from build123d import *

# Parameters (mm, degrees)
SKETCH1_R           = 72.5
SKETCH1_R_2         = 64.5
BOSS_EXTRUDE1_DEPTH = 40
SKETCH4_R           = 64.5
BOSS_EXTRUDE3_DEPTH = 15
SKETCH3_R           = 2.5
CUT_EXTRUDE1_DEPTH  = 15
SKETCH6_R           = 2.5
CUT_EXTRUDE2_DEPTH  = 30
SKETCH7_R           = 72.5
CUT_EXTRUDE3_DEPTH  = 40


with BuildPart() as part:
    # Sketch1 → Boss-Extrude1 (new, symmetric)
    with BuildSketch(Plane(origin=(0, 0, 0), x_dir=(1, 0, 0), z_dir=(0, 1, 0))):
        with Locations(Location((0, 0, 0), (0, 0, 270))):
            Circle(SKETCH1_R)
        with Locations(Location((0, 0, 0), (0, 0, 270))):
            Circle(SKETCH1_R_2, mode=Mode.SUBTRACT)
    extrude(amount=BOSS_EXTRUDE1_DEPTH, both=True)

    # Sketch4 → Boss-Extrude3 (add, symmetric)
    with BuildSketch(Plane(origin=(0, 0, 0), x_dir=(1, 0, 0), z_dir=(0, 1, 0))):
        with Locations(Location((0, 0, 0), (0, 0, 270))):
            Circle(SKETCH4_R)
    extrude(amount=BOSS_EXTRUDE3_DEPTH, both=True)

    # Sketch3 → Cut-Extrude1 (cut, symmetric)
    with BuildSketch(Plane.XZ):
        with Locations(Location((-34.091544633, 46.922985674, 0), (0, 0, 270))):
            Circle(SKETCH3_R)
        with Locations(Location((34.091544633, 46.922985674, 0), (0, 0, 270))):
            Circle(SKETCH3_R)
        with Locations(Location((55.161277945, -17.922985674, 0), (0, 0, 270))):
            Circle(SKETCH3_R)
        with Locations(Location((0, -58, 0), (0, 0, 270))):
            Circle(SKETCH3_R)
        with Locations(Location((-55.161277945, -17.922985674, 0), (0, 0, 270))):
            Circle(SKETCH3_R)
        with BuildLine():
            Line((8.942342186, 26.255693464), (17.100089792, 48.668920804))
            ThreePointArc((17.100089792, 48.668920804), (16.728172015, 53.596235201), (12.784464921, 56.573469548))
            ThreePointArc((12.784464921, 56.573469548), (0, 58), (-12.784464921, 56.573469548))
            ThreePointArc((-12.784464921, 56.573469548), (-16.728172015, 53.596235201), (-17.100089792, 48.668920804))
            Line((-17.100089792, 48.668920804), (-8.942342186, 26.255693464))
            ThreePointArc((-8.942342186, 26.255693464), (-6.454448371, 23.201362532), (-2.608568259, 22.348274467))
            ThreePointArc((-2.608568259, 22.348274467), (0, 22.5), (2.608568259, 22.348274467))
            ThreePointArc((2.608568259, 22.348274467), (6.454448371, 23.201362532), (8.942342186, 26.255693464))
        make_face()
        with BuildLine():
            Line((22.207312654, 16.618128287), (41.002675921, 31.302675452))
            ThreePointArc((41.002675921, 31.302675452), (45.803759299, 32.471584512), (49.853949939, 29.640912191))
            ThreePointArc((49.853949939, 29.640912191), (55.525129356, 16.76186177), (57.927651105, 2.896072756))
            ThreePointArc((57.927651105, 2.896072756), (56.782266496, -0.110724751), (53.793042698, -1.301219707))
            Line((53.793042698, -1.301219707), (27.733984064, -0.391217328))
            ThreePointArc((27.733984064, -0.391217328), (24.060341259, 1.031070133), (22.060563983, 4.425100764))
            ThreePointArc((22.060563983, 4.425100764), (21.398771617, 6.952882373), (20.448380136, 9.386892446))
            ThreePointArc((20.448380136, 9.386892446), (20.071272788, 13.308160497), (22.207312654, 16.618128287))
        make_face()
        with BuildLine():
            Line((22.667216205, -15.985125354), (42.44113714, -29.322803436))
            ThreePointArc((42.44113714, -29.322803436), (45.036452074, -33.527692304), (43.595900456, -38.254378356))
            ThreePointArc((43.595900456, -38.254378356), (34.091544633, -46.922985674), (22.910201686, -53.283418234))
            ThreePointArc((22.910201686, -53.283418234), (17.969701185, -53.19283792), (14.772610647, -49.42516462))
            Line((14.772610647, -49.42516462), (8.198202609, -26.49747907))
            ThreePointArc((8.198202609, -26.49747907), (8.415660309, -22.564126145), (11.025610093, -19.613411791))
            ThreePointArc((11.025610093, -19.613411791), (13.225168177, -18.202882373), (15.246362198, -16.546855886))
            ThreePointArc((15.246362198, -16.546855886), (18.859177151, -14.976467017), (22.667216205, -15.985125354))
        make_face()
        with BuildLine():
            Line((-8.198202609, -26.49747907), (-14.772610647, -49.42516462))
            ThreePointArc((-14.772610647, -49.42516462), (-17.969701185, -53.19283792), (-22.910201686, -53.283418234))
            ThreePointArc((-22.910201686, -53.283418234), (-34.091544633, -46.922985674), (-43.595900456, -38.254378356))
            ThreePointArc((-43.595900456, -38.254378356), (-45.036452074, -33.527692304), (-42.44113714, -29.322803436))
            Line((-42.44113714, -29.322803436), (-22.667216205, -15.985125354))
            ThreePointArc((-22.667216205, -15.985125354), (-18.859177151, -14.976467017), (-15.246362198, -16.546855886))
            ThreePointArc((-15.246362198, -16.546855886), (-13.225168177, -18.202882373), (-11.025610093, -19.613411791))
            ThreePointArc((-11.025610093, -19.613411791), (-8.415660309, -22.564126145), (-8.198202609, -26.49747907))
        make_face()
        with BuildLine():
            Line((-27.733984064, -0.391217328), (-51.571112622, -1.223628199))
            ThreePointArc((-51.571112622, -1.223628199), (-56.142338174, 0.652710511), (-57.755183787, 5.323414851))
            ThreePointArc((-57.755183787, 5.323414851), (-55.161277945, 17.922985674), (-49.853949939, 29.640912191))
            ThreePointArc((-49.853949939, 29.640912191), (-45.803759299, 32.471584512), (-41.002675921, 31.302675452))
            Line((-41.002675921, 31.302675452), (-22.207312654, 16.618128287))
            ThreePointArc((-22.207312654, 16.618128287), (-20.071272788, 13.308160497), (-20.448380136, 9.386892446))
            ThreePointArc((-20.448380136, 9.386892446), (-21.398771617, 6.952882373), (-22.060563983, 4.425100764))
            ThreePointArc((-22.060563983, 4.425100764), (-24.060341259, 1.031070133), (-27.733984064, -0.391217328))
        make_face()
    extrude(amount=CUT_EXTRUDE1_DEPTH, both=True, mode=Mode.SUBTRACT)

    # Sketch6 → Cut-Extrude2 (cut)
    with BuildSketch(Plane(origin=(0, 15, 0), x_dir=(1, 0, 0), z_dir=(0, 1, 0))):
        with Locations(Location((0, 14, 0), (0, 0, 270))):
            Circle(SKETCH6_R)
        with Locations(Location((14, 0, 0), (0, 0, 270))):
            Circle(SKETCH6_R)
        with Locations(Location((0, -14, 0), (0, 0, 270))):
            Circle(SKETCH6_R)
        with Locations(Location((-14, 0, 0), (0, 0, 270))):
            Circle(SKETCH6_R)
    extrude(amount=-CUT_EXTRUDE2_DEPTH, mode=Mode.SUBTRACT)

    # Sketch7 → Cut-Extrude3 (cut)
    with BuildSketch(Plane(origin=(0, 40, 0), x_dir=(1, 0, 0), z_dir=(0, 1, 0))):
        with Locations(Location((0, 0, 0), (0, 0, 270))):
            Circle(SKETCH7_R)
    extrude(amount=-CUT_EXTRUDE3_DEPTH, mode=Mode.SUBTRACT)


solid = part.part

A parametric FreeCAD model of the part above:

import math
import FreeCAD as App
import Part
import Sketcher
from FreeCAD import Vector
Q = App.Units.Quantity

doc = App.newDocument("Part")
params = doc.addObject("Spreadsheet::Sheet", "Params")
for row, (alias, value) in enumerate([
    ("sketch1_diameter", "145 mm"),
    ("sketch1_diameter2", "129 mm"),
    ("pad1_length", "80 mm"),
    ("sketch2_diameter", "129 mm"),
    ("pad2_length", "30 mm"),
    ("sketch3_diameter", "5 mm"),
    ("sketch3_radius", "6 mm"),
    ("sketch3_radius2", "58 mm"),
    ("sketch3_radius3", "4 mm"),
    ("sketch3_radius4", "22.5 mm"),
    ("pocket1_length", "30 mm"),
    ("sketch4_diameter", "5 mm"),
    ("pocket2_length", "30 mm"),
    ("sketch5_diameter", "145 mm"),
    ("pocket3_length", "40 mm"),
], start=1):
    params.set(f"A{row}", alias)
    params.set(f"B{row}", "=" + value)
    params.setAlias(f"B{row}", alias)

body = doc.addObject("PartDesign::Body", "Body")

sketch1 = body.newObject("Sketcher::SketchObject", "Sketch")
sketch1.AttachmentSupport = (doc.getObject("XZ_Plane"), [""])
sketch1.MapMode = "FlatFace"
sketch1.addGeometry(Part.Circle(Vector(0, 0, 0), Vector(0, 0, 1), 72), False)
sketch1.addGeometry(Part.Circle(Vector(0, 0, 0), Vector(0, 0, 1), 64), False)
sketch1.addConstraint(Sketcher.Constraint("Coincident", 0, 3, -1, 1))
sketch1.addConstraint(Sketcher.Constraint("Coincident", 1, 3, -1, 1))
sketch1.addConstraint(Sketcher.Constraint("Diameter", 0, 145.0))
sketch1.addConstraint(Sketcher.Constraint("Diameter", 1, 129.0))
sketch1.setExpression("Constraints[2]", "Params.sketch1_diameter")
sketch1.setExpression("Constraints[3]", "Params.sketch1_diameter2")
pad1 = body.newObject("PartDesign::Pad", "Pad")
pad1.Profile = sketch1
pad1.setExpression("Length", "Params.pad1_length")
pad1.Midplane = True

sketch2 = body.newObject("Sketcher::SketchObject", "Sketch001")
sketch2.AttachmentSupport = (doc.getObject("XZ_Plane"), [""])
sketch2.MapMode = "FlatFace"
sketch2.addGeometry(Part.Circle(Vector(0, 0, 0), Vector(0, 0, 1), 64), False)
sketch2.addConstraint(Sketcher.Constraint("Coincident", 0, 3, -1, 1))
sketch2.addConstraint(Sketcher.Constraint("Diameter", 0, 129.0))
sketch2.setExpression("Constraints[1]", "Params.sketch2_diameter")
pad2 = body.newObject("PartDesign::Pad", "Pad001")
pad2.Profile = sketch2
pad2.setExpression("Length", "Params.pad2_length")
pad2.Midplane = True

sketch3 = body.newObject("Sketcher::SketchObject", "Sketch002")
sketch3.AttachmentSupport = (doc.getObject("XZ_Plane"), [""])
sketch3.MapMode = "FlatFace"
sketch3.addGeometry(Part.Circle(Vector(-34.1, 46.9, 0), Vector(0, 0, 1), 2.5), False)
sketch3.addGeometry(Part.Circle(Vector(34.1, 46.9, 0), Vector(0, 0, 1), 2.5), False)
sketch3.addGeometry(Part.Circle(Vector(55.2, -17.9, 0), Vector(0, 0, 1), 2.5), False)
sketch3.addGeometry(Part.Circle(Vector(0, -58, 0), Vector(0, 0, 1), 2.5), False)
sketch3.addGeometry(Part.Circle(Vector(-55.2, -17.9, 0), Vector(0, 0, 1), 2.5), False)
sketch3.addGeometry(Part.LineSegment(Vector(8.9, 26.3, 0), Vector(17.1, 48.7, 0)), False)
sketch3.addGeometry(Part.ArcOfCircle(Part.Circle(Vector(11.5, 50.7, 0), Vector(0, 0, 1), 6), math.radians(-20), math.radians(77)), False)
sketch3.addGeometry(Part.ArcOfCircle(Part.Circle(Vector(0, 0, 0), Vector(0, 0, 1), 58), math.radians(77), math.radians(103)), False)
sketch3.addGeometry(Part.ArcOfCircle(Part.Circle(Vector(-11.5, 50.7, 0), Vector(0, 0, 1), 6), math.radians(103), math.radians(200)), False)
sketch3.addGeometry(Part.LineSegment(Vector(-17.1, 48.7, 0), Vector(-8.9, 26.3, 0)), False)
sketch3.addGeometry(Part.ArcOfCircle(Part.Circle(Vector(-3.3, 28.3, 0), Vector(0, 0, 1), 6), math.radians(-160), math.radians(-83)), False)
sketch3.addGeometry(Part.ArcOfCircle(Part.Circle(Vector(0, 0, 0), Vector(0, 0, 1), 22.5), math.radians(83.34), math.radians(96.66)), False)
sketch3.addGeometry(Part.ArcOfCircle(Part.Circle(Vector(3.3, 28.3, 0), Vector(0, 0, 1), 6), math.radians(-97), math.radians(-20)), False)
sketch3.addGeometry(Part.LineSegment(Vector(41, 31.3, 0), Vector(22.2, 16.6, 0)), False)
sketch3.addGeometry(Part.ArcOfCircle(Part.Circle(Vector(25.9, 11.9, 0), Vector(0, 0, 1), 6), math.radians(128), math.radians(205)), False)
sketch3.addGeometry(Part.ArcOfCircle(Part.Circle(Vector(0, 0, 0), Vector(0, 0, 1), 22.5), math.radians(11.34), math.radians(24.66)), False)
sketch3.addGeometry(Part.ArcOfCircle(Part.Circle(Vector(27.9, 5.6, 0), Vector(0, 0, 1), 6), math.radians(-169), math.radians(-92)), False)
sketch3.addGeometry(Part.LineSegment(Vector(27.7, -0.4, 0), Vector(53.8, -1.3, 0)), False)
sketch3.addGeometry(Part.ArcOfCircle(Part.Circle(Vector(53.9, 2.7, 0), Vector(0, 0, 1), 4), math.radians(-92), math.radians(3)), False)
sketch3.addGeometry(Part.ArcOfCircle(Part.Circle(Vector(0, 0, 0), Vector(0, 0, 1), 58), math.radians(3), math.radians(31)), False)
sketch3.addGeometry(Part.ArcOfCircle(Part.Circle(Vector(44.7, 26.6, 0), Vector(0, 0, 1), 6), math.radians(31), math.radians(128)), False)
sketch3.addGeometry(Part.LineSegment(Vector(42.4, -29.3, 0), Vector(22.7, -16, 0)), False)
sketch3.addGeometry(Part.ArcOfCircle(Part.Circle(Vector(19.3, -21, 0), Vector(0, 0, 1), 6), math.radians(56), math.radians(133)), False)
sketch3.addGeometry(Part.ArcOfCircle(Part.Circle(Vector(0, 0, 0), Vector(0, 0, 1), 22.5), math.radians(-60.66), math.radians(-47.34)), False)
sketch3.addGeometry(Part.ArcOfCircle(Part.Circle(Vector(14, -24.8, 0), Vector(0, 0, 1), 6), math.radians(119), math.radians(196)), False)
sketch3.addGeometry(Part.LineSegment(Vector(8.2, -26.5, 0), Vector(14.8, -49.4, 0)), False)
sketch3.addGeometry(Part.ArcOfCircle(Part.Circle(Vector(20.5, -47.8, 0), Vector(0, 0, 1), 6), math.radians(-164), math.radians(-67)), False)
sketch3.addGeometry(Part.ArcOfCircle(Part.Circle(Vector(0, 0, 0), Vector(0, 0, 1), 58), math.radians(-67), math.radians(-41)), False)
sketch3.addGeometry(Part.ArcOfCircle(Part.Circle(Vector(39.1, -34.3, 0), Vector(0, 0, 1), 6), math.radians(-41), math.radians(56)), False)
sketch3.addGeometry(Part.LineSegment(Vector(-14.8, -49.4, 0), Vector(-8.2, -26.5, 0)), False)
sketch3.addGeometry(Part.ArcOfCircle(Part.Circle(Vector(-14, -24.8, 0), Vector(0, 0, 1), 6), math.radians(-16), math.radians(61)), False)
sketch3.addGeometry(Part.ArcOfCircle(Part.Circle(Vector(0, 0, 0), Vector(0, 0, 1), 22.5), math.radians(-132.66), math.radians(-119.34)), False)
sketch3.addGeometry(Part.ArcOfCircle(Part.Circle(Vector(-19.3, -21, 0), Vector(0, 0, 1), 6), math.radians(47), math.radians(124)), False)
sketch3.addGeometry(Part.LineSegment(Vector(-22.7, -16, 0), Vector(-42.4, -29.3, 0)), False)
sketch3.addGeometry(Part.ArcOfCircle(Part.Circle(Vector(-39.1, -34.3, 0), Vector(0, 0, 1), 6), math.radians(124), math.radians(221)), False)
sketch3.addGeometry(Part.ArcOfCircle(Part.Circle(Vector(0, 0, 0), Vector(0, 0, 1), 58), math.radians(-139), math.radians(-113)), False)
sketch3.addGeometry(Part.ArcOfCircle(Part.Circle(Vector(-20.5, -47.8, 0), Vector(0, 0, 1), 6), math.radians(-113), math.radians(-16)), False)
sketch3.addGeometry(Part.LineSegment(Vector(-51.6, -1.2, 0), Vector(-27.7, -0.4, 0)), False)
sketch3.addGeometry(Part.ArcOfCircle(Part.Circle(Vector(-27.9, 5.6, 0), Vector(0, 0, 1), 6), math.radians(-88), math.radians(-11)), False)
sketch3.addGeometry(Part.ArcOfCircle(Part.Circle(Vector(0, 0, 0), Vector(0, 0, 1), 22.5), math.radians(155.34), math.radians(168.66)), False)
sketch3.addGeometry(Part.ArcOfCircle(Part.Circle(Vector(-25.9, 11.9, 0), Vector(0, 0, 1), 6), math.radians(-25), math.radians(52)), False)
sketch3.addGeometry(Part.LineSegment(Vector(-22.2, 16.6, 0), Vector(-41, 31.3, 0)), False)
sketch3.addGeometry(Part.ArcOfCircle(Part.Circle(Vector(-44.7, 26.6, 0), Vector(0, 0, 1), 6), math.radians(52), math.radians(149)), False)
sketch3.addGeometry(Part.ArcOfCircle(Part.Circle(Vector(0, 0, 0), Vector(0, 0, 1), 58), math.radians(149), math.radians(175)), False)
sketch3.addGeometry(Part.ArcOfCircle(Part.Circle(Vector(-51.8, 4.8, 0), Vector(0, 0, 1), 6), math.radians(175), math.radians(272)), False)
sketch3.addConstraint(Sketcher.Constraint("Tangent", 5, 2, 6, 1))
sketch3.addConstraint(Sketcher.Constraint("Tangent", 6, 2, 7, 1))
sketch3.addConstraint(Sketcher.Constraint("Tangent", 7, 2, 8, 1))
sketch3.addConstraint(Sketcher.Constraint("Tangent", 8, 2, 9, 1))
sketch3.addConstraint(Sketcher.Constraint("Tangent", 9, 2, 10, 1))
sketch3.addConstraint(Sketcher.Constraint("Tangent", 10, 2, 11, 2))
sketch3.addConstraint(Sketcher.Constraint("Tangent", 11, 1, 12, 1))
sketch3.addConstraint(Sketcher.Constraint("Tangent", 12, 2, 5, 1))
sketch3.addConstraint(Sketcher.Constraint("Tangent", 13, 2, 14, 1))
sketch3.addConstraint(Sketcher.Constraint("Tangent", 14, 2, 15, 2))
sketch3.addConstraint(Sketcher.Constraint("Tangent", 15, 1, 16, 1))
sketch3.addConstraint(Sketcher.Constraint("Tangent", 16, 2, 17, 1))
sketch3.addConstraint(Sketcher.Constraint("Tangent", 17, 2, 18, 1))
sketch3.addConstraint(Sketcher.Constraint("Tangent", 18, 2, 19, 1))
sketch3.addConstraint(Sketcher.Constraint("Tangent", 19, 2, 20, 1))
sketch3.addConstraint(Sketcher.Constraint("Tangent", 20, 2, 13, 1))
sketch3.addConstraint(Sketcher.Constraint("Tangent", 21, 2, 22, 1))
sketch3.addConstraint(Sketcher.Constraint("Tangent", 22, 2, 23, 2))
sketch3.addConstraint(Sketcher.Constraint("Tangent", 23, 1, 24, 1))
sketch3.addConstraint(Sketcher.Constraint("Tangent", 24, 2, 25, 1))
sketch3.addConstraint(Sketcher.Constraint("Tangent", 25, 2, 26, 1))
sketch3.addConstraint(Sketcher.Constraint("Tangent", 26, 2, 27, 1))
sketch3.addConstraint(Sketcher.Constraint("Tangent", 27, 2, 28, 1))
sketch3.addConstraint(Sketcher.Constraint("Tangent", 28, 2, 21, 1))
sketch3.addConstraint(Sketcher.Constraint("Tangent", 29, 2, 30, 1))
sketch3.addConstraint(Sketcher.Constraint("Tangent", 30, 2, 31, 2))
sketch3.addConstraint(Sketcher.Constraint("Tangent", 31, 1, 32, 1))
sketch3.addConstraint(Sketcher.Constraint("Tangent", 32, 2, 33, 1))
sketch3.addConstraint(Sketcher.Constraint("Tangent", 33, 2, 34, 1))
sketch3.addConstraint(Sketcher.Constraint("Tangent", 34, 2, 35, 1))
sketch3.addConstraint(Sketcher.Constraint("Tangent", 35, 2, 36, 1))
sketch3.addConstraint(Sketcher.Constraint("Tangent", 36, 2, 29, 1))
sketch3.addConstraint(Sketcher.Constraint("Tangent", 37, 2, 38, 1))
sketch3.addConstraint(Sketcher.Constraint("Tangent", 38, 2, 39, 2))
sketch3.addConstraint(Sketcher.Constraint("Tangent", 39, 1, 40, 1))
sketch3.addConstraint(Sketcher.Constraint("Tangent", 40, 2, 41, 1))
sketch3.addConstraint(Sketcher.Constraint("Tangent", 41, 2, 42, 1))
sketch3.addConstraint(Sketcher.Constraint("Tangent", 42, 2, 43, 1))
sketch3.addConstraint(Sketcher.Constraint("Tangent", 43, 2, 44, 1))
sketch3.addConstraint(Sketcher.Constraint("Tangent", 44, 2, 37, 1))
sketch3.addConstraint(Sketcher.Constraint("Coincident", 7, 3, -1, 1))
sketch3.addConstraint(Sketcher.Constraint("Coincident", 11, 3, -1, 1))
sketch3.addConstraint(Sketcher.Constraint("Coincident", 15, 3, -1, 1))
sketch3.addConstraint(Sketcher.Constraint("Coincident", 19, 3, -1, 1))
sketch3.addConstraint(Sketcher.Constraint("Coincident", 23, 3, -1, 1))
sketch3.addConstraint(Sketcher.Constraint("Coincident", 27, 3, -1, 1))
sketch3.addConstraint(Sketcher.Constraint("Coincident", 31, 3, -1, 1))
sketch3.addConstraint(Sketcher.Constraint("Coincident", 35, 3, -1, 1))
sketch3.addConstraint(Sketcher.Constraint("Coincident", 39, 3, -1, 1))
sketch3.addConstraint(Sketcher.Constraint("Coincident", 43, 3, -1, 1))
sketch3.addConstraint(Sketcher.Constraint("Equal", 0, 1))
sketch3.addConstraint(Sketcher.Constraint("Equal", 1, 2))
sketch3.addConstraint(Sketcher.Constraint("Equal", 2, 3))
sketch3.addConstraint(Sketcher.Constraint("Equal", 3, 4))
sketch3.addConstraint(Sketcher.Constraint("Equal", 6, 8))
sketch3.addConstraint(Sketcher.Constraint("Equal", 8, 10))
sketch3.addConstraint(Sketcher.Constraint("Equal", 10, 12))
sketch3.addConstraint(Sketcher.Constraint("Equal", 12, 14))
sketch3.addConstraint(Sketcher.Constraint("Equal", 11, 15))
sketch3.addConstraint(Sketcher.Constraint("Equal", 14, 16))
sketch3.addConstraint(Sketcher.Constraint("Equal", 7, 19))
sketch3.addConstraint(Sketcher.Constraint("Equal", 16, 20))
sketch3.addConstraint(Sketcher.Constraint("Equal", 20, 22))
sketch3.addConstraint(Sketcher.Constraint("Equal", 15, 23))
sketch3.addConstraint(Sketcher.Constraint("Equal", 22, 24))
sketch3.addConstraint(Sketcher.Constraint("Equal", 24, 26))
sketch3.addConstraint(Sketcher.Constraint("Equal", 19, 27))
sketch3.addConstraint(Sketcher.Constraint("Equal", 26, 28))
sketch3.addConstraint(Sketcher.Constraint("Equal", 28, 30))
sketch3.addConstraint(Sketcher.Constraint("Equal", 23, 31))
sketch3.addConstraint(Sketcher.Constraint("Equal", 30, 32))
sketch3.addConstraint(Sketcher.Constraint("Equal", 32, 34))
sketch3.addConstraint(Sketcher.Constraint("Equal", 27, 35))
sketch3.addConstraint(Sketcher.Constraint("Equal", 34, 36))
sketch3.addConstraint(Sketcher.Constraint("Equal", 36, 38))
sketch3.addConstraint(Sketcher.Constraint("Equal", 31, 39))
sketch3.addConstraint(Sketcher.Constraint("Equal", 38, 40))
sketch3.addConstraint(Sketcher.Constraint("Equal", 40, 42))
sketch3.addConstraint(Sketcher.Constraint("Equal", 35, 43))
sketch3.addConstraint(Sketcher.Constraint("Equal", 42, 44))
sketch3.addConstraint(Sketcher.Constraint("Symmetric", 0, 3, 1, 3, -2))
sketch3.addConstraint(Sketcher.Constraint("Symmetric", 2, 3, 4, 3, -2))
sketch3.addConstraint(Sketcher.Constraint("Symmetric", 5, 2, 8, 2, -2))
sketch3.addConstraint(Sketcher.Constraint("Symmetric", 24, 2, 29, 2, -2))
sketch3.addConstraint(Sketcher.Constraint("Symmetric", 21, 2, 32, 2, -2))
sketch3.addConstraint(Sketcher.Constraint("Symmetric", 16, 2, 37, 2, -2))
sketch3.addConstraint(Sketcher.Constraint("Symmetric", 13, 2, 40, 2, -2))
sketch3.addConstraint(Sketcher.Constraint("PointOnObject", 3, 3, -2))
sketch3.addConstraint(Sketcher.Constraint("Equal", 9, 13))
sketch3.addConstraint(Sketcher.Constraint("Equal", 13, 21))
sketch3.addConstraint(Sketcher.Constraint("Equal", 21, 25))
sketch3.addConstraint(Sketcher.Constraint("Equal", 33, 37))
sketch3.addConstraint(Sketcher.Constraint("Diameter", 0, 5.0))
sketch3.addConstraint(Sketcher.Constraint("Radius", 6, 6.0))
sketch3.addConstraint(Sketcher.Constraint("Radius", 7, 58.0))
sketch3.addConstraint(Sketcher.Constraint("Radius", 18, 4.0))
sketch3.addConstraint(Sketcher.Constraint("Radius", 11, 22.5))
sketch3.addConstraint(Sketcher.Constraint("Angle", 5, Q("70 deg")))
sketch3.addConstraint(Sketcher.Constraint("Angle", 13, Q("-142 deg")))
sketch3.addConstraint(Sketcher.Constraint("Angle", 17, Q("-2 deg")))
sketch3.addConstraint(Sketcher.Constraint("Angle", 21, Q("146 deg")))
sketch3.addConstraint(Sketcher.Constraint("Angle", 25, Q("-74 deg")))
sketch3.addConstraint(Sketcher.Constraint("DistanceY", 3, 3, -1, 1, 58.0))
sketch3.addConstraint(Sketcher.Constraint("DistanceY", -1, 1, 15, 1, 4.425101))
sketch3.addConstraint(Sketcher.Constraint("DistanceX", 0, 3, -1, 1, 34.091545))
sketch3.addConstraint(Sketcher.Constraint("DistanceY", -1, 1, 0, 3, 46.922986))
sketch3.addConstraint(Sketcher.Constraint("DistanceX", -1, 1, 2, 3, 55.161278))
sketch3.addConstraint(Sketcher.Constraint("DistanceY", 2, 3, -1, 1, 17.922986))
sketch3.setExpression("Constraints[92]", "Params.sketch3_diameter")
sketch3.setExpression("Constraints[93]", "Params.sketch3_radius")
sketch3.setExpression("Constraints[94]", "Params.sketch3_radius2")
sketch3.setExpression("Constraints[95]", "Params.sketch3_radius3")
sketch3.setExpression("Constraints[96]", "Params.sketch3_radius4")
pocket1 = body.newObject("PartDesign::Pocket", "Pocket")
pocket1.Profile = sketch3
pocket1.setExpression("Length", "Params.pocket1_length")
pocket1.Midplane = True

sketch4 = body.newObject("Sketcher::SketchObject", "Sketch003")
sketch4.AttachmentSupport = (doc.getObject("XZ_Plane"), [""])
sketch4.MapMode = "FlatFace"
sketch4.AttachmentOffset = App.Placement(Vector(0, 0, -15), App.Rotation())
sketch4.addGeometry(Part.Circle(Vector(0, -14, 0), Vector(0, 0, 1), 2.5), False)
sketch4.addGeometry(Part.Circle(Vector(14, 0, 0), Vector(0, 0, 1), 2.5), False)
sketch4.addGeometry(Part.Circle(Vector(0, 14, 0), Vector(0, 0, 1), 2.5), False)
sketch4.addGeometry(Part.Circle(Vector(-14, 0, 0), Vector(0, 0, 1), 2.5), False)
sketch4.addConstraint(Sketcher.Constraint("Equal", 0, 1))
sketch4.addConstraint(Sketcher.Constraint("Equal", 1, 2))
sketch4.addConstraint(Sketcher.Constraint("Equal", 2, 3))
sketch4.addConstraint(Sketcher.Constraint("Symmetric", 0, 3, 2, 3, -1, 1))
sketch4.addConstraint(Sketcher.Constraint("Symmetric", 1, 3, 3, 3, -1, 1))
sketch4.addConstraint(Sketcher.Constraint("PointOnObject", 0, 3, -2))
sketch4.addConstraint(Sketcher.Constraint("PointOnObject", 1, 3, -1))
sketch4.addConstraint(Sketcher.Constraint("Diameter", 0, 5.0))
sketch4.addConstraint(Sketcher.Constraint("DistanceY", 0, 3, -1, 1, 14.0))
sketch4.addConstraint(Sketcher.Constraint("DistanceX", -1, 1, 1, 3, 14.0))
sketch4.setExpression("Constraints[7]", "Params.sketch4_diameter")
pocket2 = body.newObject("PartDesign::Pocket", "Pocket001")
pocket2.Profile = sketch4
pocket2.setExpression("Length", "Params.pocket2_length")
pocket2.Reversed = True

sketch5 = body.newObject("Sketcher::SketchObject", "Sketch004")
sketch5.AttachmentSupport = (doc.getObject("XZ_Plane"), [""])
sketch5.MapMode = "FlatFace"
sketch5.AttachmentOffset = App.Placement(Vector(0, 0, -40), App.Rotation())
sketch5.addGeometry(Part.Circle(Vector(0, 0, 0), Vector(0, 0, 1), 72), False)
sketch5.addConstraint(Sketcher.Constraint("Coincident", 0, 3, -1, 1))
sketch5.addConstraint(Sketcher.Constraint("Diameter", 0, 145.0))
sketch5.setExpression("Constraints[1]", "Params.sketch5_diameter")
pocket3 = body.newObject("PartDesign::Pocket", "Pocket002")
pocket3.Profile = sketch5
pocket3.setExpression("Length", "Params.pocket3_length")
pocket3.Reversed = True

doc.recompute()
